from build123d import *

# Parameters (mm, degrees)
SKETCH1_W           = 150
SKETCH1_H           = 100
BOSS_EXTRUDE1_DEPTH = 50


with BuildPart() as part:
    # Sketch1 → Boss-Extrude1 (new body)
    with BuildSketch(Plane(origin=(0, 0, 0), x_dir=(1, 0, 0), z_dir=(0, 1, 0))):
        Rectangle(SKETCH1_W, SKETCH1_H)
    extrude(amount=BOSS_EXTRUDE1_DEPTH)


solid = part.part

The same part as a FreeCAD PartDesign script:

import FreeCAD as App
import Part
import Sketcher


def add_polygon(sketch, points):
    """Adds a closed chain of lines whose ends are joined by coincident constraints."""
    first, n = sketch.GeometryCount, len(points)
    for a, b in zip(points, points[1:] + points[:1]):
        sketch.addGeometry(Part.LineSegment(App.Vector(*a, 0), App.Vector(*b, 0)), False)
    for i in range(n):
        sketch.addConstraint(Sketcher.Constraint("Coincident", first + i, 2, first + (i + 1) % n, 1))

doc = App.newDocument("Part")
params = doc.addObject("Spreadsheet::Sheet", "Params")
for row, (alias, value) in enumerate([
    ("sketch1_width", "150 mm"),
    ("sketch1_height", "100 mm"),
    ("pad1_length", "50 mm"),
], start=1):
    params.set(f"A{row}", alias)
    params.set(f"B{row}", "=" + value)
    params.setAlias(f"B{row}", alias)

body = doc.addObject("PartDesign::Body", "Body")

sketch1 = body.newObject("Sketcher::SketchObject", "Sketch")
sketch1.AttachmentSupport = (doc.getObject("XZ_Plane"), [""])
sketch1.MapMode = "FlatFace"
add_polygon(sketch1, [(-75, -50), (-75, 50), (75, 50), (75, -50)])
sketch1.addConstraint([
    Sketcher.Constraint("Vertical", 0),
    Sketcher.Constraint("Horizontal", 1),
    Sketcher.Constraint("Vertical", 2),
    Sketcher.Constraint("Horizontal", 3),
    Sketcher.Constraint("Symmetric", 0, 2, 2, 2, -1, 1),
    Sketcher.Constraint("DistanceX", 1, 1, 1, 2, 150.0),
    Sketcher.Constraint("DistanceY", 0, 1, 0, 2, 100.0),
])
sketch1.setExpression("Constraints[9]", "Params.sketch1_width")
sketch1.setExpression("Constraints[10]", "Params.sketch1_height")
pad1 = body.newObject("PartDesign::Pad", "Pad")
pad1.Profile = sketch1
pad1.setExpression("Length", "Params.pad1_length")
pad1.Reversed = True

doc.recompute()
